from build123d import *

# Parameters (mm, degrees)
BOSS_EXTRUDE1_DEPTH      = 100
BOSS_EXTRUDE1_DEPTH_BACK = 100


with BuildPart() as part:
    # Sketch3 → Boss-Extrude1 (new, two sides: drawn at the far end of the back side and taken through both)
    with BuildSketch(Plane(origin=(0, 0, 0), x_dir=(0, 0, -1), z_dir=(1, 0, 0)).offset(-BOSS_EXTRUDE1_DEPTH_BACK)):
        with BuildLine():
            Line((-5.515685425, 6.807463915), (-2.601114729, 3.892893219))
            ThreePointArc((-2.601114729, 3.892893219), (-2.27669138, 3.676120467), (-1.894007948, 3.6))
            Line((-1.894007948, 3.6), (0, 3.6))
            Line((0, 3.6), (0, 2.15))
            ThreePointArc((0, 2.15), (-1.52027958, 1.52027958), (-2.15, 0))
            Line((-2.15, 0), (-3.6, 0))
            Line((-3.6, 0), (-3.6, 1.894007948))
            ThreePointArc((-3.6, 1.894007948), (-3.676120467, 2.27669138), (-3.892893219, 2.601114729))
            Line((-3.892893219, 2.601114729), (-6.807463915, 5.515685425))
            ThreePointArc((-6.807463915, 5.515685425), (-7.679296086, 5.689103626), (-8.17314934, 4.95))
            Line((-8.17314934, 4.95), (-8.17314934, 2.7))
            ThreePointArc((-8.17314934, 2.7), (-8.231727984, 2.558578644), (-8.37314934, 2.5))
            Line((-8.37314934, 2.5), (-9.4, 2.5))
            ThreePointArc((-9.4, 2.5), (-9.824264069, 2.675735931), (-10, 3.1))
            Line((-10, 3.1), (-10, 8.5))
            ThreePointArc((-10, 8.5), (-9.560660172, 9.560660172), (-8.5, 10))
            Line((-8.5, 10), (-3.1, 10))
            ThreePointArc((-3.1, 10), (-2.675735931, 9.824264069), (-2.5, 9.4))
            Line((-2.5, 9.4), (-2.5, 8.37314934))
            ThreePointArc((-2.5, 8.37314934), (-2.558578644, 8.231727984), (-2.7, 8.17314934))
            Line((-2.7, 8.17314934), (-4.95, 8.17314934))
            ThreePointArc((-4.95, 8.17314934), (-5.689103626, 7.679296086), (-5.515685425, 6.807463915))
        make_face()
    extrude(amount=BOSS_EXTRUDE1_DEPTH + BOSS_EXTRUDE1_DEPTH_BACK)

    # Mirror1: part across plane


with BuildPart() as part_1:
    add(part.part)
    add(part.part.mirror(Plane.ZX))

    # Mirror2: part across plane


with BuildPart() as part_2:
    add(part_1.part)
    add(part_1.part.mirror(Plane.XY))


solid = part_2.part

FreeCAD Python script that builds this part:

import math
import FreeCAD as App
import Part
import Sketcher
from FreeCAD import Vector

doc = App.newDocument("Part")
body = doc.addObject("PartDesign::Body", "Body")

sketch1 = body.newObject("Sketcher::SketchObject", "Sketch")
sketch1.AttachmentSupport = (doc.getObject("YZ_Plane"), [""])
sketch1.MapMode = "FlatFace"
sketch1.addGeometry(Part.LineSegment(Vector(3.89, 2.6, 0), Vector(6.81, 5.52, 0)), False)
sketch1.addGeometry(Part.ArcOfCircle(Part.Circle(Vector(7.37, 4.95, 0), Vector(0, 0, 1), 0.8), math.radians(0), math.radians(135)), False)
sketch1.addGeometry(Part.LineSegment(Vector(8.17, 4.95, 0), Vector(8.17, 2.7, 0)), False)
sketch1.addGeometry(Part.ArcOfCircle(Part.Circle(Vector(8.37, 2.7, 0), Vector(0, 0, 1), 0.2), math.radians(-180), math.radians(-90)), False)
sketch1.addGeometry(Part.LineSegment(Vector(8.37, 2.5, 0), Vector(9.4, 2.5, 0)), False)
sketch1.addGeometry(Part.ArcOfCircle(Part.Circle(Vector(9.4, 3.1, 0), Vector(0, 0, 1), 0.6), math.radians(-90), math.radians(0)), False)
sketch1.addGeometry(Part.LineSegment(Vector(10, 3.1, 0), Vector(10, 8.5, 0)), False)
sketch1.addGeometry(Part.ArcOfCircle(Part.Circle(Vector(8.5, 8.5, 0), Vector(0, 0, 1), 1.5), math.radians(0), math.radians(90)), False)
sketch1.addGeometry(Part.LineSegment(Vector(8.5, 10, 0), Vector(3.1, 10, 0)), False)
sketch1.addGeometry(Part.ArcOfCircle(Part.Circle(Vector(3.1, 9.4, 0), Vector(0, 0, 1), 0.6), math.radians(90), math.radians(180)), False)
sketch1.addGeometry(Part.LineSegment(Vector(2.5, 9.4, 0), Vector(2.5, 8.37, 0)), False)
sketch1.addGeometry(Part.ArcOfCircle(Part.Circle(Vector(2.7, 8.37, 0), Vector(0, 0, 1), 0.2), math.radians(-180), math.radians(-90)), False)
sketch1.addGeometry(Part.LineSegment(Vector(2.7, 8.17, 0), Vector(4.95, 8.17, 0)), False)
sketch1.addGeometry(Part.ArcOfCircle(Part.Circle(Vector(4.95, 7.37, 0), Vector(0, 0, 1), 0.8), math.radians(-45), math.radians(90)), False)
sketch1.addGeometry(Part.LineSegment(Vector(5.52, 6.81, 0), Vector(2.6, 3.89, 0)), False)
sketch1.addGeometry(Part.ArcOfCircle(Part.Circle(Vector(1.89, 4.6, 0), Vector(0, 0, 1), 1), math.radians(-90), math.radians(-45)), False)
sketch1.addGeometry(Part.LineSegment(Vector(1.89, 3.6, 0), Vector(0, 3.6, 0)), False)
sketch1.addGeometry(Part.LineSegment(Vector(0, 3.6, 0), Vector(0, 2.15, 0)), False)
sketch1.addGeometry(Part.ArcOfCircle(Part.Circle(Vector(0, 0, 0), Vector(0, 0, 1), 2.15), math.radians(0), math.radians(90)), False)
sketch1.addGeometry(Part.LineSegment(Vector(2.15, 0, 0), Vector(3.6, 0, 0)), False)
sketch1.addGeometry(Part.LineSegment(Vector(3.6, 0, 0), Vector(3.6, 1.89, 0)), False)
sketch1.addGeometry(Part.ArcOfCircle(Part.Circle(Vector(4.6, 1.89, 0), Vector(0, 0, 1), 1), math.radians(135), math.radians(180)), False)
sketch1.addConstraint(Sketcher.Constraint("Tangent", 0, 2, 1, 2))
sketch1.addConstraint(Sketcher.Constraint("Tangent", 1, 1, 2, 1))
sketch1.addConstraint(Sketcher.Constraint("Tangent", 2, 2, 3, 1))
sketch1.addConstraint(Sketcher.Constraint("Tangent", 3, 2, 4, 1))
sketch1.addConstraint(Sketcher.Constraint("Tangent", 4, 2, 5, 1))
sketch1.addConstraint(Sketcher.Constraint("Tangent", 5, 2, 6, 1))
sketch1.addConstraint(Sketcher.Constraint("Tangent", 6, 2, 7, 1))
sketch1.addConstraint(Sketcher.Constraint("Tangent", 7, 2, 8, 1))
sketch1.addConstraint(Sketcher.Constraint("Tangent", 8, 2, 9, 1))
sketch1.addConstraint(Sketcher.Constraint("Tangent", 9, 2, 10, 1))
sketch1.addConstraint(Sketcher.Constraint("Tangent", 10, 2, 11, 1))
sketch1.addConstraint(Sketcher.Constraint("Tangent", 11, 2, 12, 1))
sketch1.addConstraint(Sketcher.Constraint("Tangent", 12, 2, 13, 2))
sketch1.addConstraint(Sketcher.Constraint("Tangent", 13, 1, 14, 1))
sketch1.addConstraint(Sketcher.Constraint("Tangent", 14, 2, 15, 2))
sketch1.addConstraint(Sketcher.Constraint("Tangent", 15, 1, 16, 1))
sketch1.addConstraint(Sketcher.Constraint("Coincident", 16, 2, 17, 1))
sketch1.addConstraint(Sketcher.Constraint("Coincident", 17, 2, 18, 2))
sketch1.addConstraint(Sketcher.Constraint("Coincident", 18, 1, 19, 1))
sketch1.addConstraint(Sketcher.Constraint("Coincident", 19, 2, 20, 1))
sketch1.addConstraint(Sketcher.Constraint("Tangent", 20, 2, 21, 2))
sketch1.addConstraint(Sketcher.Constraint("Tangent", 21, 1, 0, 1))
sketch1.addConstraint(Sketcher.Constraint("Vertical", 2))
sketch1.addConstraint(Sketcher.Constraint("Horizontal", 4))
sketch1.addConstraint(Sketcher.Constraint("Vertical", 6))
sketch1.addConstraint(Sketcher.Constraint("Horizontal", 8))
sketch1.addConstraint(Sketcher.Constraint("Vertical", 10))
sketch1.addConstraint(Sketcher.Constraint("Horizontal", 12))
sketch1.addConstraint(Sketcher.Constraint("Horizontal", 16))
sketch1.addConstraint(Sketcher.Constraint("Vertical", 17))
sketch1.addConstraint(Sketcher.Constraint("Horizontal", 19))
sketch1.addConstraint(Sketcher.Constraint("Vertical", 20))
sketch1.addConstraint(Sketcher.Constraint("Coincident", 18, 3, -1, 1))
sketch1.addConstraint(Sketcher.Constraint("Equal", 5, 9))
sketch1.addConstraint(Sketcher.Constraint("Equal", 3, 11))
sketch1.addConstraint(Sketcher.Constraint("Equal", 1, 13))
sketch1.addConstraint(Sketcher.Constraint("Equal", 15, 21))
sketch1.addConstraint(Sketcher.Constraint("PointOnObject", 16, 2, -2))
sketch1.addConstraint(Sketcher.Constraint("PointOnObject", 18, 1, -1))
sketch1.addConstraint(Sketcher.Constraint("Parallel", 0, 14))
sketch1.addConstraint(Sketcher.Constraint("Equal", 12, 2))
sketch1.addConstraint(Sketcher.Constraint("Equal", 8, 6))
sketch1.addConstraint(Sketcher.Constraint("Equal", 4, 10))
sketch1.addConstraint(Sketcher.Constraint("Equal", 19, 17))
sketch1.addConstraint(Sketcher.Constraint("Equal", 16, 20))
sketch1.addConstraint(Sketcher.Constraint("Equal", 0, 14))
sketch1.addConstraint(Sketcher.Constraint("Radius", 15, 1.0))
sketch1.addConstraint(Sketcher.Constraint("Radius", 1, 0.8))
sketch1.addConstraint(Sketcher.Constraint("Radius", 3, 0.2))
sketch1.addConstraint(Sketcher.Constraint("Radius", 5, 0.6))
sketch1.addConstraint(Sketcher.Constraint("Radius", 7, 1.5))
sketch1.addConstraint(Sketcher.Constraint("Radius", 18, 2.15))
sketch1.addConstraint(Sketcher.Constraint("DistanceX", 8, 2, 8, 1, 5.4))
sketch1.addConstraint(Sketcher.Constraint("DistanceX", -1, 1, 5, 2, 10.0))
sketch1.addConstraint(Sketcher.Constraint("DistanceX", 12, 1, 12, 2, 2.25))
sketch1.addConstraint(Sketcher.Constraint("DistanceX", 19, 1, 19, 2, 1.45))
sketch1.addConstraint(Sketcher.Constraint("DistanceX", 4, 1, 4, 2, 1.026851))
pad1 = body.newObject("PartDesign::Pad", "Pad")
pad1.Profile = sketch1
pad1.Type = "TwoLengths"
pad1.Length = 100
pad1.Length2 = 100
body2 = doc.addObject("PartDesign::Body", "Body001")
doc.recompute()

body2.BaseFeature = body
doc.recompute()

mirroring = doc.addObject("Part::Mirroring", "Mirroring")
mirroring.Source = body
mirroring.Base = Vector(0, 0, 0)
mirroring.Normal = Vector(0, 1, 0)
body3 = doc.addObject("PartDesign::Body", "Body002")
body3.BaseFeature = mirroring
boolean = body2.newObject("PartDesign::Boolean", "Boolean")
boolean.Type = "Fuse"
boolean.addObjects([body3])
doc.recompute()
body4 = doc.addObject("PartDesign::Body", "Body003")
doc.recompute()

body4.BaseFeature = body2
doc.recompute()

mirroring2 = doc.addObject("Part::Mirroring", "Mirroring001")
mirroring2.Source = body2
mirroring2.Base = Vector(0, 0, 0)
mirroring2.Normal = Vector(0, 0, 1)
body5 = doc.addObject("PartDesign::Body", "Body004")
body5.BaseFeature = mirroring2
boolean2 = body4.newObject("PartDesign::Boolean", "Boolean001")
boolean2.Type = "Fuse"
boolean2.addObjects([body5])
doc.recompute()
mirroring.Visibility = False
mirroring2.Visibility = False

doc.recompute()
